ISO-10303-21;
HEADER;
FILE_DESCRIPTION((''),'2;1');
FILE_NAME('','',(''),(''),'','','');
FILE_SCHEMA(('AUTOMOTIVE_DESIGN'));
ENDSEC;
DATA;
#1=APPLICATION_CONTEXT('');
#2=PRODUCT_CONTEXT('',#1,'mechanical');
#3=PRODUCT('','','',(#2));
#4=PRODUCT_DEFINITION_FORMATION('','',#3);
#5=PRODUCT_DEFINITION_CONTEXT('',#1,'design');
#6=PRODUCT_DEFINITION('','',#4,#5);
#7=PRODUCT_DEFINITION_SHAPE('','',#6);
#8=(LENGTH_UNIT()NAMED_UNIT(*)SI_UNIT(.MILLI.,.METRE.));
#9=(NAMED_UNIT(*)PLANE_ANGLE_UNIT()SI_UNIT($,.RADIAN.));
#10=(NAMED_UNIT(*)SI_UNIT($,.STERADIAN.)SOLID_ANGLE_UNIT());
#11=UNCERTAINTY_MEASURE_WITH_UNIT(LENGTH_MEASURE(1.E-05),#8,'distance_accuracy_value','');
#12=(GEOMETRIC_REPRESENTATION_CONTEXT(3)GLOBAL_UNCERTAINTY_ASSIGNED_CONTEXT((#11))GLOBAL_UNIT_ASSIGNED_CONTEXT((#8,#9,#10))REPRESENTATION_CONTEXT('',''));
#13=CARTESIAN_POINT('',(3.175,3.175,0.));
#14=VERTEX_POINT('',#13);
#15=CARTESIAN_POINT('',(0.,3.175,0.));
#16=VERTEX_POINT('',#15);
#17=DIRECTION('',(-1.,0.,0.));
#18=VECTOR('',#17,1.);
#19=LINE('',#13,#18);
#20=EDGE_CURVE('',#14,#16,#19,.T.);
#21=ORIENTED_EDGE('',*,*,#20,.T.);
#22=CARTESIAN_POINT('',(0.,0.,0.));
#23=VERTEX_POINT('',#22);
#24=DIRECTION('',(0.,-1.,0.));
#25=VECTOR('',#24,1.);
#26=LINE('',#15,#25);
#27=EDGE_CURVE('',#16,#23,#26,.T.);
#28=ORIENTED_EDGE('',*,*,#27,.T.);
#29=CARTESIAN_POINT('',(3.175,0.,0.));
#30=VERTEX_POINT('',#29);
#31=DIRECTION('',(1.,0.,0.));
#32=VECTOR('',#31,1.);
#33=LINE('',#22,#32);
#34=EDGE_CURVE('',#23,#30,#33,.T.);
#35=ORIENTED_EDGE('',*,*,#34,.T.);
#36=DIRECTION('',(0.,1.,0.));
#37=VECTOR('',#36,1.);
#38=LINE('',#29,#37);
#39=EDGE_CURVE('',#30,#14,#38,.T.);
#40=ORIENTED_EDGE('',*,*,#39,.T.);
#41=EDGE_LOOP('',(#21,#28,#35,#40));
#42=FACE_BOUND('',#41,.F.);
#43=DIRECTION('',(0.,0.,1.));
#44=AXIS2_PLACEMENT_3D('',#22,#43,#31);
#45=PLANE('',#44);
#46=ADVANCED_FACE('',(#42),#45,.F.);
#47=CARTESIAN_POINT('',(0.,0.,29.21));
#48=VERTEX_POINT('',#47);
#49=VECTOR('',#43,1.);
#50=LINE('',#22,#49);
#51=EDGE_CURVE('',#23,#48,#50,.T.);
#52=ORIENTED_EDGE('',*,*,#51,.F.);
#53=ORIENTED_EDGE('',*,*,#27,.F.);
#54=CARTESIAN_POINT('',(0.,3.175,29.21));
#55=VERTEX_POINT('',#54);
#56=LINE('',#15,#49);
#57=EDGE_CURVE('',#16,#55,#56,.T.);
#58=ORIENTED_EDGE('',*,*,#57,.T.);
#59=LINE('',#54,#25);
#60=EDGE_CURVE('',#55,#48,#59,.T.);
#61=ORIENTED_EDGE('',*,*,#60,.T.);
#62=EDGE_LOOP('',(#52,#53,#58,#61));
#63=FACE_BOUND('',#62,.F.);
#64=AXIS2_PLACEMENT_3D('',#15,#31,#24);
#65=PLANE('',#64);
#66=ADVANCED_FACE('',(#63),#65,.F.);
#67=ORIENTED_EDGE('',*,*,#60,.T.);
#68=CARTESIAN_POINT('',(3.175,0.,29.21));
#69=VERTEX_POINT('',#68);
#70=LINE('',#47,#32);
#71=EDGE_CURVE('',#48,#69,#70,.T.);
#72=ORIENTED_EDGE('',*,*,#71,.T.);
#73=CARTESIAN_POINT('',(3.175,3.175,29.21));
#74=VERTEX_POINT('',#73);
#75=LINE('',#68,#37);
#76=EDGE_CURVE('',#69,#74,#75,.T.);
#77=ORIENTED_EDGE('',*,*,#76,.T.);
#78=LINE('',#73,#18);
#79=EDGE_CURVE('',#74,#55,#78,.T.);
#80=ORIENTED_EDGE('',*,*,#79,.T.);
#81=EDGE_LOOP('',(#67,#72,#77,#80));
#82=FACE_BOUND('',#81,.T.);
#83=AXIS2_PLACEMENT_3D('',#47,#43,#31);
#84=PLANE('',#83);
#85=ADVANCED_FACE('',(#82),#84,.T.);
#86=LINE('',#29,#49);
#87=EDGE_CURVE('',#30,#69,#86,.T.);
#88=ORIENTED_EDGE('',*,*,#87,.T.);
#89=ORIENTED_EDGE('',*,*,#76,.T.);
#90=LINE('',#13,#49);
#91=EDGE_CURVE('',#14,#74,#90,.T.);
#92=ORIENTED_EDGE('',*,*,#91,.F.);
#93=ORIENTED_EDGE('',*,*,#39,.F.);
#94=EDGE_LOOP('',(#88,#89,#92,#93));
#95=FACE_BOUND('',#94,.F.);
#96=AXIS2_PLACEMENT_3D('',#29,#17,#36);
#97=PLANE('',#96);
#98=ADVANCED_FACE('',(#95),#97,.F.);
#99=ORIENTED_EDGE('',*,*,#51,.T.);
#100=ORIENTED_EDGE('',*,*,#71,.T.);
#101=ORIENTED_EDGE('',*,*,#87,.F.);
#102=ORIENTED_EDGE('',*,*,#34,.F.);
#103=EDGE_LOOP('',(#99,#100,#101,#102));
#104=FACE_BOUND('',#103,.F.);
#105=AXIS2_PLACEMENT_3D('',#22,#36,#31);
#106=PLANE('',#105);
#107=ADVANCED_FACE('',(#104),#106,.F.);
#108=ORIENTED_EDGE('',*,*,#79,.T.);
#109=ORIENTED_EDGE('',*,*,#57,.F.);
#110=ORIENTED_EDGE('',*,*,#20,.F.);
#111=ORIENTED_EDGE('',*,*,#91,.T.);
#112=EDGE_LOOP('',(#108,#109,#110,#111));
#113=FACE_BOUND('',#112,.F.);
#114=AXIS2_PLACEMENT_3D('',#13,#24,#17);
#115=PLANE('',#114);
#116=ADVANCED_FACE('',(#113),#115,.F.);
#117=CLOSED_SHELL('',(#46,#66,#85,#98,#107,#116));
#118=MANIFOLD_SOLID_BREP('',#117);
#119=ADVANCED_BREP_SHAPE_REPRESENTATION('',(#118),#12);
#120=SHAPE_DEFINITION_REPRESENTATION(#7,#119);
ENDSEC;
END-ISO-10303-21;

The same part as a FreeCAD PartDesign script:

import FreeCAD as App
import Part
import Sketcher
from FreeCAD import Vector
Q = App.Units.Quantity


def add_polygon(sketch, points):
    """Adds a closed chain of lines whose ends are joined by coincident constraints."""
    first, n = sketch.GeometryCount, len(points)
    for a, b in zip(points, points[1:] + points[:1]):
        sketch.addGeometry(Part.LineSegment(App.Vector(*a, 0), App.Vector(*b, 0)), False)
    for i in range(n):
        sketch.addConstraint(Sketcher.Constraint("Coincident", first + i, 2, first + (i + 1) % n, 1))

doc = App.newDocument("Part")
body = doc.addObject("PartDesign::Body", "Body")

sketch1 = doc.addObject("Sketcher::SketchObject", "Sketch")
body.addObject(sketch1)
sketch1.AttachmentSupport = (doc.XY_Plane, [""])
sketch1.MapMode = "FlatFace"
add_polygon(sketch1, [(0, 3.2), (0, 0), (3.2, 0), (3.2, 3.2)])
sketch1.addConstraint([
    Sketcher.Constraint("Vertical", 0),
    Sketcher.Constraint("Horizontal", 1),
    Sketcher.Constraint("Vertical", 2),
    Sketcher.Constraint("Horizontal", 3),
    Sketcher.Constraint("Coincident", 0, 2, -1, 1),
    Sketcher.Constraint("Equal", 3, 0),
    Sketcher.Constraint("DistanceX", 1, 1, 1, 2, Q("0.125 in")),
])
pad1 = doc.addObject("PartDesign::Pad", "Pad")
body.addObject(pad1)
pad1.Profile = sketch1
pad1.Length = Q("1.15 in")

doc.recompute()
